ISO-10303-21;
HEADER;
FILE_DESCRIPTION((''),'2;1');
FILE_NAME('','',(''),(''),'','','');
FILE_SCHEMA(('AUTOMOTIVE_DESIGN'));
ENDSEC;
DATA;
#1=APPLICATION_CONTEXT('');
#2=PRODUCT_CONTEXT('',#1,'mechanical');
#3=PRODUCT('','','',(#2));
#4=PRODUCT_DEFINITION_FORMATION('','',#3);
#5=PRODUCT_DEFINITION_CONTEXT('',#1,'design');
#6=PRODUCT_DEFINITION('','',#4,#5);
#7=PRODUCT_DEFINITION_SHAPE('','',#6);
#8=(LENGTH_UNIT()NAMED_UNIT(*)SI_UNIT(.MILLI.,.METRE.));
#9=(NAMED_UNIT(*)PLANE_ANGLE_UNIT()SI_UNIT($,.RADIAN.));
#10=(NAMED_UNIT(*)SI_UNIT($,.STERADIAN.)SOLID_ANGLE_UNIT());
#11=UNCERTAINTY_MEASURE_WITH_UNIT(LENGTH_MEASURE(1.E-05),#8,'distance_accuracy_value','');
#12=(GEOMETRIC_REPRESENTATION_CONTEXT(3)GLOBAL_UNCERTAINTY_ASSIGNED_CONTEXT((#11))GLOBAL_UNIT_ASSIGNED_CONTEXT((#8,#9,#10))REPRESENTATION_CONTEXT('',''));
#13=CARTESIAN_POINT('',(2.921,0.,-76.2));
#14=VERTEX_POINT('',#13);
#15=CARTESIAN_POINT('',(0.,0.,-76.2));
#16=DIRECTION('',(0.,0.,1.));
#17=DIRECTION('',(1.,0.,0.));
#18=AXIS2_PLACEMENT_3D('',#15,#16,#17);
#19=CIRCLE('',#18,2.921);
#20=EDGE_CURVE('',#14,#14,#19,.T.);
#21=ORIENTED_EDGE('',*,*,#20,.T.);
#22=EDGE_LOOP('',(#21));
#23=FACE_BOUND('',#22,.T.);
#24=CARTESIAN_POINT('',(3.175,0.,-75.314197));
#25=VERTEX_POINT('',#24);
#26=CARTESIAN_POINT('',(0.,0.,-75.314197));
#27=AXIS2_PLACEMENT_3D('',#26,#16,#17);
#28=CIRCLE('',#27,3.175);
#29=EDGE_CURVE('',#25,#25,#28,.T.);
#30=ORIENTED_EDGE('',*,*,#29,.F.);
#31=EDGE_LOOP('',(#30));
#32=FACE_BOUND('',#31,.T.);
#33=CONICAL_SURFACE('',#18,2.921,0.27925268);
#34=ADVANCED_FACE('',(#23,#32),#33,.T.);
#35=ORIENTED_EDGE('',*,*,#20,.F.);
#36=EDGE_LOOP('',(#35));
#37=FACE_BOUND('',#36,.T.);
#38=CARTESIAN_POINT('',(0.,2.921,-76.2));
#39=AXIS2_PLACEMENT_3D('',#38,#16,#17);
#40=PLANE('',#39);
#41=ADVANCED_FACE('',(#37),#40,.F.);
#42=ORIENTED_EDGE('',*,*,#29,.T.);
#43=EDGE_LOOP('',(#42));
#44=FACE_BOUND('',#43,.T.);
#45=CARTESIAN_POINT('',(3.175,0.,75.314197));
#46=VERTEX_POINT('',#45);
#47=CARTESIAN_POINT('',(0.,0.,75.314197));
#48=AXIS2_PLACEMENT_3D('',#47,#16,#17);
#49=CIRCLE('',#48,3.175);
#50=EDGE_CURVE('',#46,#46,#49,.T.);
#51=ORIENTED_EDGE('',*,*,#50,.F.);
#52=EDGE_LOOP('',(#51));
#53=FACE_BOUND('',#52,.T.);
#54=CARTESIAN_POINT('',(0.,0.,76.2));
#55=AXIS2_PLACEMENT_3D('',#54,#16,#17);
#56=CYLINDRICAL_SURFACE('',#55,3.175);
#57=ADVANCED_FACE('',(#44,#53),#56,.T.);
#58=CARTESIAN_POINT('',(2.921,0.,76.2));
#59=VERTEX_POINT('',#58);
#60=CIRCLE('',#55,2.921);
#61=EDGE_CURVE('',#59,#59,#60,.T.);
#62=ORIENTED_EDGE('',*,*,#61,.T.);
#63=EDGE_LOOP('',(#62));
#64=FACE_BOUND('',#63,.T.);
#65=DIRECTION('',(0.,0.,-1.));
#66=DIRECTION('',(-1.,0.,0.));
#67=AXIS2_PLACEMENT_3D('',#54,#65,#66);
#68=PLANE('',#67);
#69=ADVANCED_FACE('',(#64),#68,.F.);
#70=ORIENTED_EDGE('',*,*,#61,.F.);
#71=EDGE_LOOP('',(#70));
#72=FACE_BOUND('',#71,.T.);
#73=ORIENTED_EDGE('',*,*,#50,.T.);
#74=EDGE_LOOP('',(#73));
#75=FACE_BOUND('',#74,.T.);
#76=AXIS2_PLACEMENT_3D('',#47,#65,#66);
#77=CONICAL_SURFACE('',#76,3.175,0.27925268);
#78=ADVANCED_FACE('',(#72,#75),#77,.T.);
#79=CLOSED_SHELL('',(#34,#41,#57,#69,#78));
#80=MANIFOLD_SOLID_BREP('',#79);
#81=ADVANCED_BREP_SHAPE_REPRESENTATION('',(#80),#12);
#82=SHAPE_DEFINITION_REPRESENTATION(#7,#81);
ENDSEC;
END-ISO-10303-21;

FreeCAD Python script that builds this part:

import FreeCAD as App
import Part
import Sketcher
from FreeCAD import Vector
Q = App.Units.Quantity

doc = App.newDocument("Part")
body = doc.addObject("PartDesign::Body", "Body")

# Sketch on YZ plane
sketch1 = body.newObject("Sketcher::SketchObject", "Sketch")
sketch1.AttachmentSupport = (doc.getObject("YZ_Plane"), [""])
sketch1.MapMode = "FlatFace"
sketch1.addGeometry([
    Part.LineSegment(Vector(0, 76.2, 0), Vector(0, -76.2, 0)),  # 0
    Part.LineSegment(Vector(0, -76.2, 0), Vector(2.921, -76.2, 0)),  # 1
    Part.LineSegment(Vector(2.921, -76.2, 0), Vector(3.175, -75.314197, 0)),  # 2
    Part.LineSegment(Vector(3.175, -75.314197, 0), Vector(3.175, 75.314197, 0)),  # 3
    Part.LineSegment(Vector(3.175, 75.314197, 0), Vector(2.921, 76.2, 0)),  # 4
    Part.LineSegment(Vector(2.921, 76.2, 0), Vector(0, 76.2, 0)),  # 5
], False)
sketch1.addConstraint([
    Sketcher.Constraint("Coincident", 0, 2, 1, 1),
    Sketcher.Constraint("Coincident", 1, 2, 2, 1),
    Sketcher.Constraint("Coincident", 2, 2, 3, 1),
    Sketcher.Constraint("Coincident", 3, 2, 4, 1),
    Sketcher.Constraint("Coincident", 4, 2, 5, 1),
    Sketcher.Constraint("Coincident", 5, 2, 0, 1),
    Sketcher.Constraint("Vertical", 0),
    Sketcher.Constraint("Horizontal", 1),
    Sketcher.Constraint("Vertical", 3),
    Sketcher.Constraint("Horizontal", 5),
    Sketcher.Constraint("Symmetric", 0, 2, 5, 2, -1, 1),
    Sketcher.Constraint("Vertical", 1, 2, 4, 2),
    Sketcher.Constraint("Equal", 2, 4),
    Sketcher.Constraint("DistanceY", 0, 2, 0, 1, Q("6 in")),
    Sketcher.Constraint("Angle", 2, Q("74 deg")),
    Sketcher.Constraint("DistanceX", 1, 1, 1, 2, Q("0.115 in")),
    Sketcher.Constraint("DistanceX", 1, 2, 2, 2, Q("0.01 in")),
])
revolution = body.newObject("PartDesign::Revolution", "Revolution")
revolution.Profile = sketch1
revolution.ReferenceAxis = (sketch1, ["V_Axis"])
revolution.Angle = 360

doc.recompute()
